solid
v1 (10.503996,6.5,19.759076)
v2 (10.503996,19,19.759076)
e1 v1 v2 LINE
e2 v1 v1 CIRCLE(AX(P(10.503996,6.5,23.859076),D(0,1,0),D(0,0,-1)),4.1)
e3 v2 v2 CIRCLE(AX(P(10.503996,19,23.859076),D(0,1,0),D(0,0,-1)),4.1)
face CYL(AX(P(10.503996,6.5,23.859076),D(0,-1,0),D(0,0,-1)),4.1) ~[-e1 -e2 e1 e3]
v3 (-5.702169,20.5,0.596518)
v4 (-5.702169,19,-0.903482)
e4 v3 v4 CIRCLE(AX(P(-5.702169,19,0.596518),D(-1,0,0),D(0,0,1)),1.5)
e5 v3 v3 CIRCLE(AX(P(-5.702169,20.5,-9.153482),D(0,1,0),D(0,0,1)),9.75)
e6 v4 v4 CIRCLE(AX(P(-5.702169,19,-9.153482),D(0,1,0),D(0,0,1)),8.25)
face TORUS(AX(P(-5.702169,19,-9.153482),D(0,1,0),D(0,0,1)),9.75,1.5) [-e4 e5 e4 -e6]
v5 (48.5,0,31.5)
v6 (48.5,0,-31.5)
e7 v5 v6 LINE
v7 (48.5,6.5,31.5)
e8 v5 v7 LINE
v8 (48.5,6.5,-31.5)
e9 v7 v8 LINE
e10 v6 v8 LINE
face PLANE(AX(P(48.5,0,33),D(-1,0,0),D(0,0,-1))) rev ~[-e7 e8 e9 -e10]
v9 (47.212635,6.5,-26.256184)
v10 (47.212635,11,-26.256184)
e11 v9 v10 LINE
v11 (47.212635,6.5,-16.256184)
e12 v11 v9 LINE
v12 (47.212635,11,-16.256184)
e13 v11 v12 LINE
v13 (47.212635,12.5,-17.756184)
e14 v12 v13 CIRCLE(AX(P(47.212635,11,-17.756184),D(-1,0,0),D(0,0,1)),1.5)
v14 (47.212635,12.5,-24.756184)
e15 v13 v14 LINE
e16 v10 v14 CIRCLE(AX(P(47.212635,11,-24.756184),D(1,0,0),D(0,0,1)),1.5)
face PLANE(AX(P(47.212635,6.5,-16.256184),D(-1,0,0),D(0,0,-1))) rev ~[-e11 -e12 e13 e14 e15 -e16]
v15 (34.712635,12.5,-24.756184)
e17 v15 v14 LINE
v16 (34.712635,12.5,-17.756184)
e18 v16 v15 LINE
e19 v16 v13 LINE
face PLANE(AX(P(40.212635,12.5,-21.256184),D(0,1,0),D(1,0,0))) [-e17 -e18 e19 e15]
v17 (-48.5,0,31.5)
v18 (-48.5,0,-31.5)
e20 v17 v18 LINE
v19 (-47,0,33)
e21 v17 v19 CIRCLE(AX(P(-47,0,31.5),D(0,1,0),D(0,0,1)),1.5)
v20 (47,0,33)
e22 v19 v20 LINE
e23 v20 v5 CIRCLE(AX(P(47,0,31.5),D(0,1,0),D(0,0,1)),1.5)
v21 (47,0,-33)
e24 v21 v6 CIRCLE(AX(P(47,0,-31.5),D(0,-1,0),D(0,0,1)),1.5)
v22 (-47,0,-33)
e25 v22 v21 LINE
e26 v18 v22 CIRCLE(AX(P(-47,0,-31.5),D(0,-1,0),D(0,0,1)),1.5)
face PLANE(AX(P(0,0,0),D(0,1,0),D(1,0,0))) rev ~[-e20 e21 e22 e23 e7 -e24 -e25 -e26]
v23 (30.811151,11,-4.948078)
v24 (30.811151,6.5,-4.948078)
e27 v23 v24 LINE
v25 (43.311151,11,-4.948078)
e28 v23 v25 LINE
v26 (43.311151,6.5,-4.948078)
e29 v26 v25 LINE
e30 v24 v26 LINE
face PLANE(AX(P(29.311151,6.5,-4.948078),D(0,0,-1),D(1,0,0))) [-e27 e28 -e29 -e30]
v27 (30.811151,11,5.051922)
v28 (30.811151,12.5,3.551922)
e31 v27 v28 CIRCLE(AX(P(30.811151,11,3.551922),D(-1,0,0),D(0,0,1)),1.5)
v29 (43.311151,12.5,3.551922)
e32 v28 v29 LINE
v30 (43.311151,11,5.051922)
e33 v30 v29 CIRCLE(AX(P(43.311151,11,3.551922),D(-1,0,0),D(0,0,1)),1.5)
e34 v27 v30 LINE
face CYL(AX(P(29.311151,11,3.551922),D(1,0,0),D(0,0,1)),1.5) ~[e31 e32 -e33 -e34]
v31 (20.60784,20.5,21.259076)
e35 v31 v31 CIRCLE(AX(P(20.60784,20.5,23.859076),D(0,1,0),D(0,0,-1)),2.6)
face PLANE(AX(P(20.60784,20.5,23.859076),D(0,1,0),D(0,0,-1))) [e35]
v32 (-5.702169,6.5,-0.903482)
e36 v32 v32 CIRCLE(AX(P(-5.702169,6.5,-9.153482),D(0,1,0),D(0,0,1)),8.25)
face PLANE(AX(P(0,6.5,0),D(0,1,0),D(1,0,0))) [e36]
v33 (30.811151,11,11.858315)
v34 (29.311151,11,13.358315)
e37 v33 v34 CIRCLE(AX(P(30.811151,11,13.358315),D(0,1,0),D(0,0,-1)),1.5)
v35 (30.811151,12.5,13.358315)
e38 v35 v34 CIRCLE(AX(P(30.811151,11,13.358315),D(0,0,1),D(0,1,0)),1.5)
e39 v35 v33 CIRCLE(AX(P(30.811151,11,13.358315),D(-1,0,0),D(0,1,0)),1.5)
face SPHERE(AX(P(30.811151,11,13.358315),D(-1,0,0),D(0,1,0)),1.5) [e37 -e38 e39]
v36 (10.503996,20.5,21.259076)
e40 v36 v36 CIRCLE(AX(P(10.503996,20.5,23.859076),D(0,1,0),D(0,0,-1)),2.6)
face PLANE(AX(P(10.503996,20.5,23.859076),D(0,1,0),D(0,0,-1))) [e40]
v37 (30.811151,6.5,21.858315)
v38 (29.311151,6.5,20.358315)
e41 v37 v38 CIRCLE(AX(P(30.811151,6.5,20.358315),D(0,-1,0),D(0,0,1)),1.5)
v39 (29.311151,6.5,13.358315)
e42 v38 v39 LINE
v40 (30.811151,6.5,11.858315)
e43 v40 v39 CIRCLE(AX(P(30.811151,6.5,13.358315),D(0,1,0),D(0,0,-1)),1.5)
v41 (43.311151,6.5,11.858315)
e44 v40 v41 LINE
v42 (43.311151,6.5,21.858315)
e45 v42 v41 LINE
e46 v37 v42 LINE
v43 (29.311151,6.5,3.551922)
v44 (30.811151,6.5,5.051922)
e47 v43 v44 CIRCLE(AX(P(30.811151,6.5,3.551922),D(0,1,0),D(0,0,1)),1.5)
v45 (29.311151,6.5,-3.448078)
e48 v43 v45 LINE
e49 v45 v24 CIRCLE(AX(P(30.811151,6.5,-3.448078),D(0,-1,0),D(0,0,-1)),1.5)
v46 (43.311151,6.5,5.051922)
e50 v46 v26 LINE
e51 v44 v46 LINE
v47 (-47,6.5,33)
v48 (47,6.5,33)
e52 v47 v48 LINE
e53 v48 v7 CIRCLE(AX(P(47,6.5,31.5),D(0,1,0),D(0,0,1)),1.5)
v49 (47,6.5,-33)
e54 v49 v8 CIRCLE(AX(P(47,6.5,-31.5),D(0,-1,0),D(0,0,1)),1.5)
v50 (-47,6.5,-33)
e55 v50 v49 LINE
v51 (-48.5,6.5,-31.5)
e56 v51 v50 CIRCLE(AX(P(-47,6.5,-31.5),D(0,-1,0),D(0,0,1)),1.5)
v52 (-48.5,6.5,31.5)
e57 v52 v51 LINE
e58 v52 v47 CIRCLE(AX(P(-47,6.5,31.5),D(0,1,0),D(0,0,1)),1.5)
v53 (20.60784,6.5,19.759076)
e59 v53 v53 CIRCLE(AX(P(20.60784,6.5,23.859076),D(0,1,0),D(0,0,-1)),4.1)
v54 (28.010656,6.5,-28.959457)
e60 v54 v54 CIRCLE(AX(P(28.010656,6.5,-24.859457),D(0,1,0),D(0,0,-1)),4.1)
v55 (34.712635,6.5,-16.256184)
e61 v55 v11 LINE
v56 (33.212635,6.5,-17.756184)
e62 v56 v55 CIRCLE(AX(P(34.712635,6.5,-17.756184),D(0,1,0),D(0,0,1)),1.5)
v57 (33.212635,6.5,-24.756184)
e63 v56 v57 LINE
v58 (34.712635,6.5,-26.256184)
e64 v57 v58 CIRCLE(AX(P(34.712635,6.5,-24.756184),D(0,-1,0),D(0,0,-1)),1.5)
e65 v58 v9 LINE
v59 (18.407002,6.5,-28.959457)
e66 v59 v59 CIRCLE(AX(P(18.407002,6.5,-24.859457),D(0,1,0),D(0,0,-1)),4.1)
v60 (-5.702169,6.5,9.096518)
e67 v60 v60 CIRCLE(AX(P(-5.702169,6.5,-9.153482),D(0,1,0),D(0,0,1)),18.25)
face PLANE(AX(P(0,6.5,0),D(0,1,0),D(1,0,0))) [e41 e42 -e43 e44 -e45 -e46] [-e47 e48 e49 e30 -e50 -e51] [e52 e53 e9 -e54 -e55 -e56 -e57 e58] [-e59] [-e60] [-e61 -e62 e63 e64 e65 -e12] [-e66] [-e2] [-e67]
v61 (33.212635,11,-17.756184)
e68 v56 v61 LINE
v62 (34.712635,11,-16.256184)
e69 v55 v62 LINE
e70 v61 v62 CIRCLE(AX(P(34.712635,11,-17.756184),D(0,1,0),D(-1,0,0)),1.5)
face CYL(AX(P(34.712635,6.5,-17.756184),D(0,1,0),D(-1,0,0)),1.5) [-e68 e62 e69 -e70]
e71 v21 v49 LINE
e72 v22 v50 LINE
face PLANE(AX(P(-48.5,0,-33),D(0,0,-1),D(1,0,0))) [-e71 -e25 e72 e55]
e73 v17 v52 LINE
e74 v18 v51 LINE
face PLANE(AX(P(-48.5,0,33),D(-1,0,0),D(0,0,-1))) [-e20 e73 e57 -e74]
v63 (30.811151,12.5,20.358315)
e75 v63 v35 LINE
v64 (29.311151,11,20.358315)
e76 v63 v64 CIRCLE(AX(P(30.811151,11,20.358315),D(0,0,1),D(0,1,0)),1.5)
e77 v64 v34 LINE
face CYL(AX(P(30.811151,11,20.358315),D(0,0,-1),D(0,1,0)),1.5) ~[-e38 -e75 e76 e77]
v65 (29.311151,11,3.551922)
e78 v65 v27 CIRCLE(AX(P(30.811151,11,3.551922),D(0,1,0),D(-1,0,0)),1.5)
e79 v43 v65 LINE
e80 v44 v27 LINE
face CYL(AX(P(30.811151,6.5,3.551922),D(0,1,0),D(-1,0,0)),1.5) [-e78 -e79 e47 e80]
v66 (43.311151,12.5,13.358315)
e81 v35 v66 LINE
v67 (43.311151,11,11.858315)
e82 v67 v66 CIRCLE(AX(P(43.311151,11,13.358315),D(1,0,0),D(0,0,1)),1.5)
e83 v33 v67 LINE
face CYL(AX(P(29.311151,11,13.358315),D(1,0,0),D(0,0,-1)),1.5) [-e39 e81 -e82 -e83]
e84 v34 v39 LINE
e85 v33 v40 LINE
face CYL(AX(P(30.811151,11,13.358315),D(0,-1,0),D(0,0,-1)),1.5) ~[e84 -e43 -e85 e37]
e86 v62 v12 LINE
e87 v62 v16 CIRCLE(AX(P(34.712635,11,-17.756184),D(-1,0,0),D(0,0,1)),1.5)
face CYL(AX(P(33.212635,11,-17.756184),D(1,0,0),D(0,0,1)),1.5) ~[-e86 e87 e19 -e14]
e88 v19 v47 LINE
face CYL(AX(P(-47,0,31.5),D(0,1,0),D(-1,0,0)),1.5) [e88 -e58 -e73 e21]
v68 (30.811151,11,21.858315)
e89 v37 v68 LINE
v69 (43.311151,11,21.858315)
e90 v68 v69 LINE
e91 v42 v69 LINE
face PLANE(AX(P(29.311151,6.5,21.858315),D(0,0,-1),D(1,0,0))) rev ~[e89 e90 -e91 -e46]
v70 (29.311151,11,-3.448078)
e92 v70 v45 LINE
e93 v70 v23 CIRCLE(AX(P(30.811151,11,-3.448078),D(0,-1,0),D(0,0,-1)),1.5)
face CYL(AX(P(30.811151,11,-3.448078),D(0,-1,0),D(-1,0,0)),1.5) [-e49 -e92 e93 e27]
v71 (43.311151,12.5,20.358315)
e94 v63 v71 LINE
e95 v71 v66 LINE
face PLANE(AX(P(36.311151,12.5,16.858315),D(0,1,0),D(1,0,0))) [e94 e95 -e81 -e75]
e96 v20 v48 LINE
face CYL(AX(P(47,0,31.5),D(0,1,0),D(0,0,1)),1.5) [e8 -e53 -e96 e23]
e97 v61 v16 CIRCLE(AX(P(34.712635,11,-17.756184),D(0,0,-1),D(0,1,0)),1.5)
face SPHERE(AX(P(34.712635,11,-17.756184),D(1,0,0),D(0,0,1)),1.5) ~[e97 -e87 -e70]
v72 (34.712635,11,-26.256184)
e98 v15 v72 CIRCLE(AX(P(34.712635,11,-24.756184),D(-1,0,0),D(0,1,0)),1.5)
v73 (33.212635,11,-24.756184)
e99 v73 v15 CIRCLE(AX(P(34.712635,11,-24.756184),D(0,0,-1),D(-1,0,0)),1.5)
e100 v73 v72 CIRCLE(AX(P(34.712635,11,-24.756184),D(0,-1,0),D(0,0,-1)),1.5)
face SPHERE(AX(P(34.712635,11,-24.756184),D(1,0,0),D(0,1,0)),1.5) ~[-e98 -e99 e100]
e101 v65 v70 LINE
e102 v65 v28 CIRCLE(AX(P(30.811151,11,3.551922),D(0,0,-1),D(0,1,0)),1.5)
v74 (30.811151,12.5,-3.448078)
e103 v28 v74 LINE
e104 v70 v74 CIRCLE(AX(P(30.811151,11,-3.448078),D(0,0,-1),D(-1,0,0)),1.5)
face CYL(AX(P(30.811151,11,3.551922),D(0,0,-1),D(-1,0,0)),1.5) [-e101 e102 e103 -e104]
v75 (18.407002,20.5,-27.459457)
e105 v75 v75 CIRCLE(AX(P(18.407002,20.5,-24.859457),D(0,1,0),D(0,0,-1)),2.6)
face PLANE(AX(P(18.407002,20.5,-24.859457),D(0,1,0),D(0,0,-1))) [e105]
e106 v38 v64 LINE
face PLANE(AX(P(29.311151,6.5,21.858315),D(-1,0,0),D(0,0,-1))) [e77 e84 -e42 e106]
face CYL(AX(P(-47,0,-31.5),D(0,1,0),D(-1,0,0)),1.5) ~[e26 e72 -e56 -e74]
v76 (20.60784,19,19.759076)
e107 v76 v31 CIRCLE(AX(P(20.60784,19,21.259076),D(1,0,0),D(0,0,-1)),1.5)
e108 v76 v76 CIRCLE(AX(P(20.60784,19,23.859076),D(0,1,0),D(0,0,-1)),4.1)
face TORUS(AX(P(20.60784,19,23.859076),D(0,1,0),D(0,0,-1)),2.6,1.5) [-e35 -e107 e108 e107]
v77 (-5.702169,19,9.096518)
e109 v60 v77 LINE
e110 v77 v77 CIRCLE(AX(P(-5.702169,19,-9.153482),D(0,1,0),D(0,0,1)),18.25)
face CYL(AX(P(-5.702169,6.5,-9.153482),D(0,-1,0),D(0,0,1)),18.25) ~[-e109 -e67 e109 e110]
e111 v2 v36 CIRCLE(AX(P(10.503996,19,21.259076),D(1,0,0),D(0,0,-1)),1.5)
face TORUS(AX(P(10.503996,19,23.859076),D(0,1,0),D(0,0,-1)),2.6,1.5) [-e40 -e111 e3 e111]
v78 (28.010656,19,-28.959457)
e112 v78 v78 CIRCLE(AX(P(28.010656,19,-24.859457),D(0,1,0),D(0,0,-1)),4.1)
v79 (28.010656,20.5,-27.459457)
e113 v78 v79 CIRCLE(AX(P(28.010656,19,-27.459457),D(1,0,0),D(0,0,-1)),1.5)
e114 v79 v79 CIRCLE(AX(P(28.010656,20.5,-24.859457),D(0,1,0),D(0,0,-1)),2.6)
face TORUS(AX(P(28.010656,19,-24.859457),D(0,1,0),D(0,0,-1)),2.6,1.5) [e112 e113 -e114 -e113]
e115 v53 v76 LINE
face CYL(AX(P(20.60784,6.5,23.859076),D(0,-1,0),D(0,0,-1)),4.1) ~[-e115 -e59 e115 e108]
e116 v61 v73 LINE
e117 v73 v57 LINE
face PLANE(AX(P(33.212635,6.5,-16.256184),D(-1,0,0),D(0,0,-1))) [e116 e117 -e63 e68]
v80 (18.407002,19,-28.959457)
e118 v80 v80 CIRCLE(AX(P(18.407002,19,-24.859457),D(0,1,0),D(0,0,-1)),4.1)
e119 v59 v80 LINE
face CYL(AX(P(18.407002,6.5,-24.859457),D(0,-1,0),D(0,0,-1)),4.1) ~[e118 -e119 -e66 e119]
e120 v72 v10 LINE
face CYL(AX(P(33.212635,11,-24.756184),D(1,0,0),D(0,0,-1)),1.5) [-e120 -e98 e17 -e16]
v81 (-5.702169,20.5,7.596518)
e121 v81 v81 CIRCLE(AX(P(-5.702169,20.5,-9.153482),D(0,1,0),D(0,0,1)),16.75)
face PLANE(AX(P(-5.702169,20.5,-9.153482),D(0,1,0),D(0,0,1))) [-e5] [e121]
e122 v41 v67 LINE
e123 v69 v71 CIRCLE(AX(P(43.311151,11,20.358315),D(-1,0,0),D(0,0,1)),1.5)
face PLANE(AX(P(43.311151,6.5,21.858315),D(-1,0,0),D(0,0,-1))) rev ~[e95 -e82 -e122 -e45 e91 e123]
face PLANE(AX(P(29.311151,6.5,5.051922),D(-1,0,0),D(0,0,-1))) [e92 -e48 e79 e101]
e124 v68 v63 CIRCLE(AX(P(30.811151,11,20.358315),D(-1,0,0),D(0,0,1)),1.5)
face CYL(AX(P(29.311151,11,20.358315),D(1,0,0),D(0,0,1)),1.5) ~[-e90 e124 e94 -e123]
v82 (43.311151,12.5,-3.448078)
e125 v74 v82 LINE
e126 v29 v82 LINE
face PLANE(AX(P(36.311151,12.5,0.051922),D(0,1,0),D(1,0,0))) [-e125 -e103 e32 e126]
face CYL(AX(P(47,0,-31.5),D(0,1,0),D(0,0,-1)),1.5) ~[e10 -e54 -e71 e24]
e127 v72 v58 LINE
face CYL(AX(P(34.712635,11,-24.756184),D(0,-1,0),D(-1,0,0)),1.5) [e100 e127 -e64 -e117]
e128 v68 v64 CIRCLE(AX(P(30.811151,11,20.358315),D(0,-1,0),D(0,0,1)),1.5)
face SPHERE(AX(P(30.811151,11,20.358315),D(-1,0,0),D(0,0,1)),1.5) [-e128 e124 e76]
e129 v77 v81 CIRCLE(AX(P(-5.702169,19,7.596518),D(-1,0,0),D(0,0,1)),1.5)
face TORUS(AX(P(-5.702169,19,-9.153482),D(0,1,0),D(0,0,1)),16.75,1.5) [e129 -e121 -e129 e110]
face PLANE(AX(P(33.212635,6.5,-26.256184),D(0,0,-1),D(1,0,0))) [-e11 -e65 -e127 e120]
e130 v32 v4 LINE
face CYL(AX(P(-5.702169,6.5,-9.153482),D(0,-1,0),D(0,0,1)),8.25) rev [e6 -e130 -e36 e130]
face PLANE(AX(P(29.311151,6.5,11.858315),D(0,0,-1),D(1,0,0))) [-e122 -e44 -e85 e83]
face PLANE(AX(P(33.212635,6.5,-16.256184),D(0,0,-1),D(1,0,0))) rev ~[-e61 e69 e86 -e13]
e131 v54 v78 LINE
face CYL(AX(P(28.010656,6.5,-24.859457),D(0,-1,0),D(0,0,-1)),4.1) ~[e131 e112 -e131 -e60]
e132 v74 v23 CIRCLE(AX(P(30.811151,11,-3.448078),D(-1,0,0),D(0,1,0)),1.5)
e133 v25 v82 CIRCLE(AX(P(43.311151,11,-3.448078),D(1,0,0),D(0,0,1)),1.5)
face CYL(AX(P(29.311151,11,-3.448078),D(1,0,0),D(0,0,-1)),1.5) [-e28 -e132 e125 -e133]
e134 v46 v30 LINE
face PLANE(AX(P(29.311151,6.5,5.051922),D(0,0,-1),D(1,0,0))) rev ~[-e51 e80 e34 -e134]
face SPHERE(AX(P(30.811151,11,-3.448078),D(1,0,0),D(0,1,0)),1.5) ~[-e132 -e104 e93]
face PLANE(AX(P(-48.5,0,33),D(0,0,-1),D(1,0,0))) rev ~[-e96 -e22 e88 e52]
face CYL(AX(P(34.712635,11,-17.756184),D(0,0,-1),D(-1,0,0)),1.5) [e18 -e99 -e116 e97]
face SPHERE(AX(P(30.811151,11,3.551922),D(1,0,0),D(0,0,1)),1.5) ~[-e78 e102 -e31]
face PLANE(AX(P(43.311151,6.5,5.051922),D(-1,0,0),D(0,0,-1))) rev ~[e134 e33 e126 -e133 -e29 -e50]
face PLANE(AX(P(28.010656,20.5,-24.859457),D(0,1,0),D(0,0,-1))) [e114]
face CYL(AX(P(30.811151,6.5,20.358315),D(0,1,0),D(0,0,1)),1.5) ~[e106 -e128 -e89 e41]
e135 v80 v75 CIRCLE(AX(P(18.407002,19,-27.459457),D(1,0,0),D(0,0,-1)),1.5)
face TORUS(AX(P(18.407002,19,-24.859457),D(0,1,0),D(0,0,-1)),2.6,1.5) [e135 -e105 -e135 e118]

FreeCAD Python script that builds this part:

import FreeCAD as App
import Part
import Sketcher


def edges_at(feature, points):
    """Names of the edges that pass closest to the given points."""
    edges = feature.Shape.Edges
    near = lambda p: min(range(len(edges)), key=lambda i: edges[i].distToShape(Part.Vertex(*p))[0])
    return sorted({f"Edge{near(p) + 1}" for p in points})


def add_polygon(sketch, points):
    """Adds a closed chain of lines whose ends are joined by coincident constraints."""
    first, n = sketch.GeometryCount, len(points)
    for a, b in zip(points, points[1:] + points[:1]):
        sketch.addGeometry(Part.LineSegment(App.Vector(*a, 0), App.Vector(*b, 0)), False)
    for i in range(n):
        sketch.addConstraint(Sketcher.Constraint("Coincident", first + i, 2, first + (i + 1) % n, 1))

doc = App.newDocument("Part")
body = doc.addObject("PartDesign::Body", "Body")

# Sketch on XZ plane
sketch1 = doc.addObject("Sketcher::SketchObject", "Sketch")
body.addObject(sketch1)
sketch1.AttachmentSupport = (doc.XZ_Plane, [""])
sketch1.MapMode = "FlatFace"
add_polygon(sketch1, [(-48, -33), (-48, 33), (48, 33), (48, -33)])  # lines 0-3
sketch1.addConstraint([
    Sketcher.Constraint("Vertical", 0),
    Sketcher.Constraint("Horizontal", 1),
    Sketcher.Constraint("Vertical", 2),
    Sketcher.Constraint("Horizontal", 3),
    Sketcher.Constraint("Symmetric", 0, 2, 2, 2, -1, 1),
    Sketcher.Constraint("DistanceX", 1, 1, 1, 2, 97.0),
    Sketcher.Constraint("DistanceY", 0, 1, 0, 2, 66.0),
])
pad1 = doc.addObject("PartDesign::Pad", "Pad")
body.addObject(pad1)
pad1.Profile = sketch1
pad1.Length = 6.5
pad1.Reversed = True

# Sketch on XZ plane
sketch2 = doc.addObject("Sketcher::SketchObject", "Sketch001")
body.addObject(sketch2)
sketch2.AttachmentSupport = (doc.XZ_Plane, [""])
sketch2.MapMode = "FlatFace"
sketch2.AttachmentOffset = App.Placement(App.Vector(0, 0, -6.5), App.Rotation())
sketch2.addGeometry([
    Part.Circle(App.Vector(-5.7, -9.2, 0), App.Vector(0, 0, 1), 18.2),  # 0
    Part.Circle(App.Vector(-5.7, -9.2, 0), App.Vector(0, 0, 1), 8.2),  # 1
    Part.Circle(App.Vector(18.4, -24.9, 0), App.Vector(0, 0, 1), 4.1),  # 2
    Part.Circle(App.Vector(28, -24.9, 0), App.Vector(0, 0, 1), 4.1),  # 3
    Part.Circle(App.Vector(10.5, 23.9, 0), App.Vector(0, 0, 1), 4.1),  # 4
    Part.Circle(App.Vector(20.6, 23.9, 0), App.Vector(0, 0, 1), 4.1),  # 5
], False)
sketch2.addConstraint([
    Sketcher.Constraint("Coincident", 1, 3, 0, 3),
    Sketcher.Constraint("Equal", 2, 3),
    Sketcher.Constraint("Equal", 3, 4),
    Sketcher.Constraint("Equal", 4, 5),
    Sketcher.Constraint("Horizontal", 2, 3, 3, 3),
    Sketcher.Constraint("Horizontal", 4, 3, 5, 3),
    Sketcher.Constraint("Diameter", 0, 36.5),
    Sketcher.Constraint("Diameter", 1, 16.5),
    Sketcher.Constraint("Diameter", 2, 8.2),
    Sketcher.Constraint("DistanceX", 0, 3, -1, 1, 5.702169),
    Sketcher.Constraint("DistanceX", -1, 1, 5, 3, 20.60784),
    Sketcher.Constraint("DistanceX", 0, 3, 2, 3, 24.109172),
    Sketcher.Constraint("DistanceY", 0, 3, 4, 3, 33.012559),
    Sketcher.Constraint("DistanceX", 4, 3, 3, 3, 17.50666),
    Sketcher.Constraint("DistanceY", 0, 3, -1, 1, 9.153482),
    Sketcher.Constraint("DistanceY", 2, 3, -1, 1, 24.859457),
    Sketcher.Constraint("DistanceX", -1, 1, 3, 3, 28.010656),
])
pad2 = doc.addObject("PartDesign::Pad", "Pad001")
body.addObject(pad2)
pad2.Profile = sketch2
pad2.Length = 14
pad2.Reversed = True

# Sketch on XZ plane
sketch3 = doc.addObject("Sketcher::SketchObject", "Sketch002")
body.addObject(sketch3)
sketch3.AttachmentSupport = (doc.XZ_Plane, [""])
sketch3.MapMode = "FlatFace"
sketch3.AttachmentOffset = App.Placement(App.Vector(0, 0, -6.5), App.Rotation())
add_polygon(sketch3, [(33, -26), (33, -16), (47, -16), (47, -26)])  # lines 0-3
add_polygon(sketch3, [(29, -5), (29, 5), (43, 5), (43, -5)])  # lines 4-7
add_polygon(sketch3, [(29, 12), (29, 22), (43, 22), (43, 12)])  # lines 8-11
sketch3.addConstraint([
    Sketcher.Constraint("Vertical", 0),
    Sketcher.Constraint("Horizontal", 1),
    Sketcher.Constraint("Vertical", 2),
    Sketcher.Constraint("Horizontal", 3),
    Sketcher.Constraint("Vertical", 4),
    Sketcher.Constraint("Horizontal", 5),
    Sketcher.Constraint("Vertical", 6),
    Sketcher.Constraint("Horizontal", 7),
    Sketcher.Constraint("Vertical", 8),
    Sketcher.Constraint("Horizontal", 9),
    Sketcher.Constraint("Vertical", 10),
    Sketcher.Constraint("Horizontal", 11),
    Sketcher.Constraint("Vertical", 7, 2, 8, 2),
    Sketcher.Constraint("Vertical", 6, 2, 9, 2),
    Sketcher.Constraint("Equal", 3, 5),
    Sketcher.Constraint("Equal", 2, 4),
    Sketcher.Constraint("Equal", 6, 8),
    Sketcher.Constraint("DistanceX", 1, 1, 1, 2, 14.0),
    Sketcher.Constraint("DistanceY", 0, 1, 0, 2, 10.0),
    Sketcher.Constraint("DistanceY", 0, 2, 8, 2, 38.1145),
    Sketcher.Constraint("DistanceX", -1, 1, 4, 2, 29.311151),
    Sketcher.Constraint("DistanceY", -1, 1, 4, 2, 5.051922),
    Sketcher.Constraint("DistanceX", -1, 1, 0, 2, 33.212635),
    Sketcher.Constraint("DistanceY", 0, 2, -1, 1, 16.256184),
])
pad3 = doc.addObject("PartDesign::Pad", "Pad002")
body.addObject(pad3)
pad3.Profile = sketch3
pad3.Length = 6
pad3.Reversed = True
doc.recompute()

fillet = doc.addObject("PartDesign::Fillet", "Fillet")
body.addObject(fillet)
fillet.Base = (pad3, edges_at(pad3, [
    (48.5, 3.25, 33),
    (-48.5, 3.25, 33),
    (-48.5, 3.25, -33),
    (48.5, 3.25, -33),
]))
fillet.Radius = 1.5
doc.recompute()

fillet2 = doc.addObject("PartDesign::Fillet", "Fillet001")
body.addObject(fillet2)
fillet2.Base = (fillet, edges_at(fillet, [
    (-5.702, 20.5, -27.403),
    (-5.702, 20.5, -17.403),
    (18.407, 20.5, -20.759),
    (28.011, 20.5, -20.759),
    (10.504, 20.5, 27.959),
    (20.608, 20.5, 27.959),
    (40.213, 12.5, -16.256),
    (40.213, 12.5, -26.256),
    (36.311, 12.5, 5.052),
    (36.311, 12.5, -4.948),
    (36.311, 12.5, 21.858),
    (36.311, 12.5, 11.858),
]))
fillet2.Radius = 1.5
doc.recompute()

fillet3 = doc.addObject("PartDesign::Fillet", "Fillet002")
body.addObject(fillet3)
fillet3.Base = (fillet2, edges_at(fillet2, [
    (29.311, 8.75, 21.858),
    (29.311, 8.75, 11.858),
    (29.311, 12.061, 12.298),
    (29.311, 12.061, 21.419),
    (29.311, 12.5, 0.052),
    (29.311, 8.75, 5.052),
    (29.311, 8.75, -4.948),
    (29.311, 12.061, -4.509),
    (29.311, 12.061, 4.613),
    (33.213, 12.5, -21.256),
    (33.213, 8.75, -16.256),
    (33.213, 8.75, -26.256),
    (33.213, 12.061, -16.696),
    (33.213, 12.061, -25.817),
    (29.311, 12.5, 16.858),
]))
fillet3.Radius = 1.5

doc.recompute()
